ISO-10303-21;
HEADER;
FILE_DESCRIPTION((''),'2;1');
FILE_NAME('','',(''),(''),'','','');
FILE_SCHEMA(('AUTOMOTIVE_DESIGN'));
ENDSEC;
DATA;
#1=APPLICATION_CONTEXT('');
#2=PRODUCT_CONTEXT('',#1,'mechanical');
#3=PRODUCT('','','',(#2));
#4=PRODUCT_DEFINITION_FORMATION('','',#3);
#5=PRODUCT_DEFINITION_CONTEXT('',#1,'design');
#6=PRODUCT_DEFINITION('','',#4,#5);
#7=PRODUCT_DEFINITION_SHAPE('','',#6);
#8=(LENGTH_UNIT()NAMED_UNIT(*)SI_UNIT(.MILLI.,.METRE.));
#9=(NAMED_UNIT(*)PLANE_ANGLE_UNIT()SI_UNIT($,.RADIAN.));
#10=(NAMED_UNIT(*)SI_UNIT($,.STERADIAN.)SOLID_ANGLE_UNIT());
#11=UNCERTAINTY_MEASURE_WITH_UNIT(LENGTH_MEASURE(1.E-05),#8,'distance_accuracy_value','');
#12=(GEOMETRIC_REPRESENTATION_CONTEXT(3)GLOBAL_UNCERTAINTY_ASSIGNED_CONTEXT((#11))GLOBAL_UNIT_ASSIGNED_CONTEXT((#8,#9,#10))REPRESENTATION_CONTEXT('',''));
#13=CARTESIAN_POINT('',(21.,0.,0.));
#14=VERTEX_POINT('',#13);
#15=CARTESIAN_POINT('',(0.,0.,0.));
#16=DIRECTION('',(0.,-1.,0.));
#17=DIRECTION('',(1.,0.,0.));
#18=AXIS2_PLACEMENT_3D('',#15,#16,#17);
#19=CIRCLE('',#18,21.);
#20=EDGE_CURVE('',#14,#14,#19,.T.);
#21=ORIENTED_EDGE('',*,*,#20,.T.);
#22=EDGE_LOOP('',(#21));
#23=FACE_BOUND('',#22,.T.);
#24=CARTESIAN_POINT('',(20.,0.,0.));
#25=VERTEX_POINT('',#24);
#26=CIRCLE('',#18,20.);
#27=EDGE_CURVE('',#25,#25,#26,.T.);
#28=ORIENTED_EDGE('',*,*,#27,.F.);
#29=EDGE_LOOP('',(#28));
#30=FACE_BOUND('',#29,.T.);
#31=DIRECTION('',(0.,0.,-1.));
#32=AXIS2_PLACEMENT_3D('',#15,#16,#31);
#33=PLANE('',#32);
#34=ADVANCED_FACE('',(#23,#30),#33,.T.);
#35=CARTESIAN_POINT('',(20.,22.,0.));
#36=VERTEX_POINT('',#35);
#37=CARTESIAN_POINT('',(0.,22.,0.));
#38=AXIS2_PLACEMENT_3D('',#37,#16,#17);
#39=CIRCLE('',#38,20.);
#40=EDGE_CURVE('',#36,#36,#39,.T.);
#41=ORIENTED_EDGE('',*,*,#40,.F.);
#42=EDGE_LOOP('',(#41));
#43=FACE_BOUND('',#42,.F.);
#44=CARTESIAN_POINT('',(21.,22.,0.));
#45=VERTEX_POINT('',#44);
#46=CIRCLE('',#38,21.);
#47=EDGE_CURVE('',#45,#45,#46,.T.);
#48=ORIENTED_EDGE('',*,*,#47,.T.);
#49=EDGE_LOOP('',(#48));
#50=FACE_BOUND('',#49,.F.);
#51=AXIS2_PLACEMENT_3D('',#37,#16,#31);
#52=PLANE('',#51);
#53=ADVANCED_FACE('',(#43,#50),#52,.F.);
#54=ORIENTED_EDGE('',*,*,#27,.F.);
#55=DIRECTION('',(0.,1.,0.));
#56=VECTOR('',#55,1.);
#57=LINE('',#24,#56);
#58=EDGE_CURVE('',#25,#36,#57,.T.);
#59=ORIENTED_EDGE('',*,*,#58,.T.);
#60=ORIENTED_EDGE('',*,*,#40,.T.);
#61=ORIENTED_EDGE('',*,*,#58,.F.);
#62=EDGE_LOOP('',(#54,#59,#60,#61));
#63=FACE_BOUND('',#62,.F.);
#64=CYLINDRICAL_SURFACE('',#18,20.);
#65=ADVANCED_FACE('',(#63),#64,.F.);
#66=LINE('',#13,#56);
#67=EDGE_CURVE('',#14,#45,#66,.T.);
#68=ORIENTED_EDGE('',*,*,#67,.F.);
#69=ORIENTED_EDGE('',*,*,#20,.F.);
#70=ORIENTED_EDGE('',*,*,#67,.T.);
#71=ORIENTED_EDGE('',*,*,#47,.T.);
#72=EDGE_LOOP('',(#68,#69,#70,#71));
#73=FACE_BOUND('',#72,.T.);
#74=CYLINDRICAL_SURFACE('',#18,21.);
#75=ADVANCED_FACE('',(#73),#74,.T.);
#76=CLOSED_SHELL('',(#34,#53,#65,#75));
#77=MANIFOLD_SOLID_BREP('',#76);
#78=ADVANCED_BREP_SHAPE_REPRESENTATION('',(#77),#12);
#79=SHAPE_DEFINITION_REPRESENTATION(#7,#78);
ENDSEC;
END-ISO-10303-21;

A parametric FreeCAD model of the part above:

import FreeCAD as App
import Part
import Sketcher

doc = App.newDocument("Part")
body = doc.addObject("PartDesign::Body", "Body")

# Sketch on XZ plane
sketch1 = body.newObject("Sketcher::SketchObject", "Sketch")
sketch1.AttachmentSupport = (doc.getObject("XZ_Plane"), [""])
sketch1.MapMode = "FlatFace"
sketch1.addGeometry(Part.Circle(App.Vector(0, 0, 0), App.Vector(0, 0, 1), 21), False)
sketch1.addGeometry(Part.Circle(App.Vector(0, 0, 0), App.Vector(0, 0, 1), 20), False)
sketch1.addConstraint(Sketcher.Constraint("Coincident", 0, 3, -1, 1))
sketch1.addConstraint(Sketcher.Constraint("Coincident", 1, 3, -1, 1))
sketch1.addConstraint(Sketcher.Constraint("Diameter", 0, 42.0))
sketch1.addConstraint(Sketcher.Constraint("Diameter", 1, 40.0))
pad1 = body.newObject("PartDesign::Pad", "Pad")
pad1.Profile = sketch1
pad1.Length = 22
pad1.Reversed = True

doc.recompute()
